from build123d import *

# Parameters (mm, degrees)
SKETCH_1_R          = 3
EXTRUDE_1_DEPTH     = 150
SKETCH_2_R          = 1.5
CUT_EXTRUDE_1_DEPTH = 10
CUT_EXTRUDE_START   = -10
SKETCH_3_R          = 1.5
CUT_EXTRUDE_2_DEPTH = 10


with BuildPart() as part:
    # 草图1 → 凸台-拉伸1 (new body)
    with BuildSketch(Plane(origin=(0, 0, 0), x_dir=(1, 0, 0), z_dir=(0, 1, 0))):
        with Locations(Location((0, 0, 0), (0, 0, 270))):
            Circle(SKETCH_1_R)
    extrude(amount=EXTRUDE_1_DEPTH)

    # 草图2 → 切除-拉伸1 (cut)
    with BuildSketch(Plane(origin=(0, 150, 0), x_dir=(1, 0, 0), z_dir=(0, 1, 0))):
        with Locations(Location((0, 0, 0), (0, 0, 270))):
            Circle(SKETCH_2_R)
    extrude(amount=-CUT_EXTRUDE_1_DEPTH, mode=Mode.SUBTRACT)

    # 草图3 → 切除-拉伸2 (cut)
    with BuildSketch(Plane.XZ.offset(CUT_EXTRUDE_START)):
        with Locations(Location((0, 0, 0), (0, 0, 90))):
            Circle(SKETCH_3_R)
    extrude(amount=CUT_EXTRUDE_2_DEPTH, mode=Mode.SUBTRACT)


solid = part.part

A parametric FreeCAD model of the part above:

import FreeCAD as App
import Part
import Sketcher
Q = App.Units.Quantity

doc = App.newDocument("Part")
body = doc.addObject("PartDesign::Body", "Body")

sketch1 = body.newObject("Sketcher::SketchObject", "Sketch")
sketch1.AttachmentSupport = (doc.getObject("XZ_Plane"), [""])
sketch1.MapMode = "FlatFace"
sketch1.addGeometry(Part.Circle(App.Vector(0, 0, 0), App.Vector(0, 0, 1), 3), False)
sketch1.addConstraint(Sketcher.Constraint("Coincident", 0, 3, -1, 1))
sketch1.addConstraint(Sketcher.Constraint("Diameter", 0, Q("6 mm")))
pad1 = body.newObject("PartDesign::Pad", "Pad")
pad1.Profile = sketch1
pad1.Length = 150
pad1.Reversed = True

sketch2 = body.newObject("Sketcher::SketchObject", "Sketch001")
sketch2.AttachmentSupport = (doc.getObject("XZ_Plane"), [""])
sketch2.MapMode = "FlatFace"
sketch2.AttachmentOffset = App.Placement(App.Vector(0, 0, -150), App.Rotation())
sketch2.addGeometry(Part.Circle(App.Vector(0, 0, 0), App.Vector(0, 0, 1), 1.5), False)
sketch2.addConstraint(Sketcher.Constraint("Coincident", 0, 3, -1, 1))
sketch2.addConstraint(Sketcher.Constraint("Diameter", 0, Q("3 mm")))
pocket1 = body.newObject("PartDesign::Pocket", "Pocket")
pocket1.Profile = sketch2
pocket1.Length = 10
pocket1.Reversed = True

sketch3 = body.newObject("Sketcher::SketchObject", "Sketch002")
sketch3.AttachmentSupport = (doc.getObject("XZ_Plane"), [""])
sketch3.MapMode = "FlatFace"
sketch3.AttachmentOffset = App.Placement(App.Vector(0, 0, -10), App.Rotation())
sketch3.addGeometry(Part.Circle(App.Vector(0, 0, 0), App.Vector(0, 0, 1), 1.5), False)
sketch3.addConstraint(Sketcher.Constraint("Coincident", 0, 3, -1, 1))
sketch3.addConstraint(Sketcher.Constraint("Diameter", 0, Q("3 mm")))
pocket2 = body.newObject("PartDesign::Pocket", "Pocket001")
pocket2.Profile = sketch3
pocket2.Length = 10
pocket2.Reversed = True

doc.recompute()
